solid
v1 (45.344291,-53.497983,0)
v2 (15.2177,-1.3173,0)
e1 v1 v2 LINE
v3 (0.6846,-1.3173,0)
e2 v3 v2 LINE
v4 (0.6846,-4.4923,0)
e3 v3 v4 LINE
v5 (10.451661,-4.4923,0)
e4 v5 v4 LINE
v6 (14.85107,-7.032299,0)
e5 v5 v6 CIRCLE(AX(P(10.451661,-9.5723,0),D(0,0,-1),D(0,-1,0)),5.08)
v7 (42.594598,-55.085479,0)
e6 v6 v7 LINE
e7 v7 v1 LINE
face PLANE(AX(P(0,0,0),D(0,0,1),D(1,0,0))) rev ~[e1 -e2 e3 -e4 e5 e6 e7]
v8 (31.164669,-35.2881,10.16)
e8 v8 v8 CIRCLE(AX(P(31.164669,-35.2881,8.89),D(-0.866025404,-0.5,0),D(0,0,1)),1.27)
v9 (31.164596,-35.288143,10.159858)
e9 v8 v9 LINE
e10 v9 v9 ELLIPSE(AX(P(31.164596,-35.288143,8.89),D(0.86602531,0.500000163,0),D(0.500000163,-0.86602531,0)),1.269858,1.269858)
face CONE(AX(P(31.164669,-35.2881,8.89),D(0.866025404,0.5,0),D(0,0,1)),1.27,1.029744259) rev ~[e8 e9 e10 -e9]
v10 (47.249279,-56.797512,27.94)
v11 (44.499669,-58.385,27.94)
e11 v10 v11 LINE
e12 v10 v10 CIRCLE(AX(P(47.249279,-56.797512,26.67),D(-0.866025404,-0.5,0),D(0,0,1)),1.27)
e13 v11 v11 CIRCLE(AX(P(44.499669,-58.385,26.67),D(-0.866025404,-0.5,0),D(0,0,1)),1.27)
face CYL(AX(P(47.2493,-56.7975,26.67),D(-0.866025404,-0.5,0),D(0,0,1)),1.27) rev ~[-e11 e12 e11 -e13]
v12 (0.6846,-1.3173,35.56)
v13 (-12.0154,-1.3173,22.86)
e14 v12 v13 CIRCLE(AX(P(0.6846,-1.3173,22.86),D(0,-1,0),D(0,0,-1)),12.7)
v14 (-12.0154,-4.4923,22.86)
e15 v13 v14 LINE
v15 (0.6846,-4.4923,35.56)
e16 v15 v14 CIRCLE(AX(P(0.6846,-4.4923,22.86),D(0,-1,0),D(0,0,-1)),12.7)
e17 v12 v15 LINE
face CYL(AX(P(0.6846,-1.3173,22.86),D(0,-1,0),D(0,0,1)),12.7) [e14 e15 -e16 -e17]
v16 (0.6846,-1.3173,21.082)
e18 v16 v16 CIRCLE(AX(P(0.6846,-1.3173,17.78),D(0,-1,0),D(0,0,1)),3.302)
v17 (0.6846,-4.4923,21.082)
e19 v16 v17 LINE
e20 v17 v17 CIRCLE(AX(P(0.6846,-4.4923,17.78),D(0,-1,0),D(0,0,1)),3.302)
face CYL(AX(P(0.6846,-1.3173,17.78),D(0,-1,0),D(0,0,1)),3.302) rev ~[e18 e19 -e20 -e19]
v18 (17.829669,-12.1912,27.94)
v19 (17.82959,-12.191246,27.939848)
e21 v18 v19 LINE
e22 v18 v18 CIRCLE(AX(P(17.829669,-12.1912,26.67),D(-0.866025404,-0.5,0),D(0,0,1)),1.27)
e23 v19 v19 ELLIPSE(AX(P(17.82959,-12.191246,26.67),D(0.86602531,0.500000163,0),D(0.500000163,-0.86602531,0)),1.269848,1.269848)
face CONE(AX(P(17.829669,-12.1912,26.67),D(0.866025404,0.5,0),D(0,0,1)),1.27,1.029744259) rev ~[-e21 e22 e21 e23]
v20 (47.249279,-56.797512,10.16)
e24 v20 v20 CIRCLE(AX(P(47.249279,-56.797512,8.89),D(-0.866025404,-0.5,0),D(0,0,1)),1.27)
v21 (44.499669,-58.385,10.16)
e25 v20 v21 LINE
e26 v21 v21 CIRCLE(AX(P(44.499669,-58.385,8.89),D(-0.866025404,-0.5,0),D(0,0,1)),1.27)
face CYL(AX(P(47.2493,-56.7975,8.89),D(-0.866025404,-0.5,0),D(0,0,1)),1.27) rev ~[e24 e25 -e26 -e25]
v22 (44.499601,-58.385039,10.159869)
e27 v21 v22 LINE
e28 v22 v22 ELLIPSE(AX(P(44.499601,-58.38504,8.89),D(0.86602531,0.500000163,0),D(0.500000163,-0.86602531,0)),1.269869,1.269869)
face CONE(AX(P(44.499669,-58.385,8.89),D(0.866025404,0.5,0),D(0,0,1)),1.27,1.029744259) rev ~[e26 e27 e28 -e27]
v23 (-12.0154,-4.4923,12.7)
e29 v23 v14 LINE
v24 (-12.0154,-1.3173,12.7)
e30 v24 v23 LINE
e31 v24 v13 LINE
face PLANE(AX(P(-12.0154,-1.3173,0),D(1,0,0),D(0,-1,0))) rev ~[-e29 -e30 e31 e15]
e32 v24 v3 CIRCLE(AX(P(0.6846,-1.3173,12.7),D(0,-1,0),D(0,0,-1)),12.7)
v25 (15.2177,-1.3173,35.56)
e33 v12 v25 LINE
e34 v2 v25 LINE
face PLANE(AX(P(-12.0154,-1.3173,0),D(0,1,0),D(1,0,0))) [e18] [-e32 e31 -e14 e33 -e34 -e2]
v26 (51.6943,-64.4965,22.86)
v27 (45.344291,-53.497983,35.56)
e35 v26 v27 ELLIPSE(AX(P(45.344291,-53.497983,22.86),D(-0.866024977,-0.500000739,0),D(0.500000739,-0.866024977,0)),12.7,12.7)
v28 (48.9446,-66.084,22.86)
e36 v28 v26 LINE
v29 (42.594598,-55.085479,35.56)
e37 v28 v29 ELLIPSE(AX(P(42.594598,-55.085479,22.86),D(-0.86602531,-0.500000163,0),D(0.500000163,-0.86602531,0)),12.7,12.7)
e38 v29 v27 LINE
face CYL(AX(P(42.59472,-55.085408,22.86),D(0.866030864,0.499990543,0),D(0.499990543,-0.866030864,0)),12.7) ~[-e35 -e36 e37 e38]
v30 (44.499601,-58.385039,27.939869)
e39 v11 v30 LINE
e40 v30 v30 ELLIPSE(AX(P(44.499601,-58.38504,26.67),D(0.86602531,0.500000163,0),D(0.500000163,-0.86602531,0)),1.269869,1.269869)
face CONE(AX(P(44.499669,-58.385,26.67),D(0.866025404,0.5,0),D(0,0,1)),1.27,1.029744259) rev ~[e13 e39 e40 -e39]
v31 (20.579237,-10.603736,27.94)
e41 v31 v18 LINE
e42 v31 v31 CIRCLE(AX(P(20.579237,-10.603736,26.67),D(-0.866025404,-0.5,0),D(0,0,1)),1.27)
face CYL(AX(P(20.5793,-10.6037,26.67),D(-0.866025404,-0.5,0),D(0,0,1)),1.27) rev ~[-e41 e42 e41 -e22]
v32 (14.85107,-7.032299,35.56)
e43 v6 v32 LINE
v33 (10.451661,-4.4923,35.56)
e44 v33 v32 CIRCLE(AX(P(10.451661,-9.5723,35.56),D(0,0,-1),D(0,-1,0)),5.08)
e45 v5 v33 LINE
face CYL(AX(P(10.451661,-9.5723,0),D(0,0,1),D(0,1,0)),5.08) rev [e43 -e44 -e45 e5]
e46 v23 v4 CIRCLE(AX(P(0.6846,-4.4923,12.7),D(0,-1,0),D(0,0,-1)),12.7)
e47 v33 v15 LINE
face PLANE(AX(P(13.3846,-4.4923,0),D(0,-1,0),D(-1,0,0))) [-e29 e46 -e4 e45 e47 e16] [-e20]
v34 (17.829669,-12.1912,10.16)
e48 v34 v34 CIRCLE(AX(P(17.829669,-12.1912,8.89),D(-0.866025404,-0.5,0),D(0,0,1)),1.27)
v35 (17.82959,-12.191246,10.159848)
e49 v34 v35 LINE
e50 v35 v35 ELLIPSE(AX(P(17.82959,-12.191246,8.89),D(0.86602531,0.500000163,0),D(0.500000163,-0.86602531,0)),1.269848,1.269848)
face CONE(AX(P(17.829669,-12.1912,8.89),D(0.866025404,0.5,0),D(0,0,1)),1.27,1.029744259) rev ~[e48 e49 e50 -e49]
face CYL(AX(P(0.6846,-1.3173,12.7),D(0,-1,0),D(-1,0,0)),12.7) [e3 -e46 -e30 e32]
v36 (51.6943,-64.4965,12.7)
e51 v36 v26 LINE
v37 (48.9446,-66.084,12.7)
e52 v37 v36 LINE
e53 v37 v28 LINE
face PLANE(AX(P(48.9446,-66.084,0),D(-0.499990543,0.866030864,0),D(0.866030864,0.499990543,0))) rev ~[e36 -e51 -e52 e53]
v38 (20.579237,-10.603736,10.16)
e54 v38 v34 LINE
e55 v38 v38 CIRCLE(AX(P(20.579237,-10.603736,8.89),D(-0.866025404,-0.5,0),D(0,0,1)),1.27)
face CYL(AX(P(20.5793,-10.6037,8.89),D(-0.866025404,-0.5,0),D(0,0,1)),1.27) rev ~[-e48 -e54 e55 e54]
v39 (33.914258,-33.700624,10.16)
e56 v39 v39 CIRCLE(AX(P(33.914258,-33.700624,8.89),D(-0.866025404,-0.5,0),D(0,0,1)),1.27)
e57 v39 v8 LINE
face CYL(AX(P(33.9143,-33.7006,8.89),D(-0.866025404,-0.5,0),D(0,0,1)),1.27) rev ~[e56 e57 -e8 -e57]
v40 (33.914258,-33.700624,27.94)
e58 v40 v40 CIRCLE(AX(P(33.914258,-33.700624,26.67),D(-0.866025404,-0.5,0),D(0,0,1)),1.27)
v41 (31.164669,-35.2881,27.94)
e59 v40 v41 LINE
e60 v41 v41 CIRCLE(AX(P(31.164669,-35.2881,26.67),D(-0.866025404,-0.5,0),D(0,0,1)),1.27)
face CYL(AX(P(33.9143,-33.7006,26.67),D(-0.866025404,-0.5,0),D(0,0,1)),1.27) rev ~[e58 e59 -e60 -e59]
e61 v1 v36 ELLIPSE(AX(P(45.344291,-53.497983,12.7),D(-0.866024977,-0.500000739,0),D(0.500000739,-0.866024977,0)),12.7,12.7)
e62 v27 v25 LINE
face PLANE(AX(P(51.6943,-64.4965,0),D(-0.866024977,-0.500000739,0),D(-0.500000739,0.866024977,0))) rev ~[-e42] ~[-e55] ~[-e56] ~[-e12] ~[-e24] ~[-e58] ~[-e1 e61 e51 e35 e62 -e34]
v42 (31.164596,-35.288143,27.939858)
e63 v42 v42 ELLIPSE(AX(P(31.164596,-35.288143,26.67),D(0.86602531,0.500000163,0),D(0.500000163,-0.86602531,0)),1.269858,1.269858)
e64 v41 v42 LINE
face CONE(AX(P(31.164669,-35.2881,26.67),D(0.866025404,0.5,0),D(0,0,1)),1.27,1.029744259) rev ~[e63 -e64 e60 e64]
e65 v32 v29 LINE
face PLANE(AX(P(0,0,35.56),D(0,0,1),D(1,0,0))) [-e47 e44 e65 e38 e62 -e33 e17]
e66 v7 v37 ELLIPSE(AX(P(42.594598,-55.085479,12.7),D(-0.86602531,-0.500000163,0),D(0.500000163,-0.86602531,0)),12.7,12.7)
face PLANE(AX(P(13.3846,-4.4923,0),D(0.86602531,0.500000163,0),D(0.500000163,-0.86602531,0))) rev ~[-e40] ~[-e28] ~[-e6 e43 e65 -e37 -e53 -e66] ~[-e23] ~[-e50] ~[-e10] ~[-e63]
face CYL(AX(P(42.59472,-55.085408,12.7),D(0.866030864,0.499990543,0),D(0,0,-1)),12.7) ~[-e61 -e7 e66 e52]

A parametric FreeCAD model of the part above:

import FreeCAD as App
import Part
import Sketcher
from FreeCAD import Vector
Q = App.Units.Quantity


def edges_at(feature, points):
    """Names of the edges that pass closest to the given points."""
    edges = feature.Shape.Edges
    near = lambda p: min(range(len(edges)), key=lambda i: edges[i].distToShape(Part.Vertex(*p))[0])
    return sorted({f"Edge{near(p) + 1}" for p in points})

doc = App.newDocument("Part")
body = doc.addObject("PartDesign::Body", "Body")

# Sketch on XY plane
sketch1 = doc.addObject("Sketcher::SketchObject", "Sketch")
body.addObject(sketch1)
sketch1.AttachmentSupport = (doc.XY_Plane, [""])
sketch1.MapMode = "FlatFace"
sketch1.addGeometry([
    Part.LineSegment(Vector(-12, -4.5, 0), Vector(13.4, -4.5, 0)),  # 0
    Part.LineSegment(Vector(13.4, -4.5, 0), Vector(48.9, -66.1, 0)),  # 1
    Part.LineSegment(Vector(48.9, -66.1, 0), Vector(51.7, -64.5, 0)),  # 2
    Part.LineSegment(Vector(51.7, -64.5, 0), Vector(15.2, -1.3, 0)),  # 3
    Part.LineSegment(Vector(15.2, -1.3, 0), Vector(-12, -1.3, 0)),  # 4
    Part.LineSegment(Vector(-12, -1.3, 0), Vector(-12, -4.5, 0)),  # 5
], False)
sketch1.addConstraint([
    Sketcher.Constraint("Coincident", 0, 2, 1, 1),
    Sketcher.Constraint("Coincident", 1, 2, 2, 1),
    Sketcher.Constraint("Coincident", 2, 2, 3, 1),
    Sketcher.Constraint("Coincident", 3, 2, 4, 1),
    Sketcher.Constraint("Coincident", 4, 2, 5, 1),
    Sketcher.Constraint("Coincident", 5, 2, 0, 1),
    Sketcher.Constraint("Horizontal", 0),
    Sketcher.Constraint("Horizontal", 4),
    Sketcher.Constraint("Vertical", 5),
    Sketcher.Constraint("Perpendicular", 1, 2),
    Sketcher.Constraint("Perpendicular", 2, 3),
    Sketcher.Constraint("Angle", 1, Q("-60 deg")),
    Sketcher.Constraint("Distance", 1, Q("2.8 in")),
    Sketcher.Constraint("DistanceX", 0, 1, 0, 2, Q("1 in")),
    Sketcher.Constraint("DistanceY", 5, 2, 5, 1, Q("0.125 in")),
    Sketcher.Constraint("Distance", 2, Q("0.125 in")),
    Sketcher.Constraint("DistanceX", -1, 1, 2, 2, Q("2.0352 in")),
    Sketcher.Constraint("DistanceY", 0, 2, -1, 1, 4.4923),
])
pad1 = doc.addObject("PartDesign::Pad", "Pad")
body.addObject(pad1)
pad1.Profile = sketch1
pad1.Length = Q("1.4 in")

# Sketch on XZ plane
sketch2 = doc.addObject("Sketcher::SketchObject", "Sketch001")
body.addObject(sketch2)
sketch2.AttachmentSupport = (doc.XZ_Plane, [""])
sketch2.MapMode = "FlatFace"
sketch2.AttachmentOffset = App.Placement(Vector(0, 0, 1.3173), App.Rotation())
sketch2.addGeometry(Part.Circle(Vector(0.7, 17.8, 0), Vector(0, 0, 1), 3.3), False)
sketch2.addConstraint([
    Sketcher.Constraint("Diameter", 0, Q("0.26 in")),
    Sketcher.Constraint("DistanceY", -1, 1, 0, 3, Q("0.7 in")),
    Sketcher.Constraint("DistanceX", -1, 1, 0, 3, 0.6846),
])
doc.recompute()
hole = doc.addObject("PartDesign::Hole", "Hole")
body.addObject(hole)
hole.Profile = sketch2
hole.ThreadType = "None"
hole.Diameter = Q("0.26 in")
hole.DepthType = "Dimension"
hole.Depth = Q("0.125 in")
hole.DrillPoint = "Angled"
hole.DrillPointAngle = 118
hole.Reversed = True

# Sketch on an angled plane
sketch3 = doc.addObject("Sketcher::SketchObject", "Sketch002")
body.addObject(sketch3)
sketch3.Placement = App.Placement(Vector(10.842936, 6.260172, 0), App.Rotation(Vector(-0.5, 0.866025404, 0), Vector(0, 0, 1), Vector(0.866025404, 0.5, 0), "ZXY"))
sketch3.addGeometry(Part.Circle(Vector(-72.8, 8.9, 0), Vector(0, 0, 1), 1.3), False)
sketch3.addConstraint([
    Sketcher.Constraint("Diameter", 0, Q("0.1 in")),
    Sketcher.Constraint("DistanceY", -1, 1, 0, 3, Q("0.35 in")),
    Sketcher.Constraint("DistanceX", 0, 3, -1, 1, 72.8127),
])
doc.recompute()
hole2 = doc.addObject("PartDesign::Hole", "Hole001")
body.addObject(hole2)
hole2.Profile = sketch3
hole2.ThreadType = "None"
hole2.Diameter = Q("0.1 in")
hole2.DepthType = "Dimension"
hole2.Depth = Q("0.125 in")
hole2.DrillPoint = "Angled"
hole2.DrillPointAngle = 118

# Sketch on an angled plane
sketch4 = doc.addObject("Sketcher::SketchObject", "Sketch003")
body.addObject(sketch4)
sketch4.Placement = App.Placement(Vector(10.842936, 6.260172, 0), App.Rotation(Vector(-0.5, 0.866025404, 0), Vector(0, 0, 1), Vector(0.866025404, 0.5, 0), "ZXY"))
sketch4.addGeometry(Part.Circle(Vector(-72.8, 26.7, 0), Vector(0, 0, 1), 1.3), False)
sketch4.addConstraint([
    Sketcher.Constraint("Diameter", 0, Q("0.1 in")),
    Sketcher.Constraint("DistanceY", -1, 1, 0, 3, Q("1.05 in")),
    Sketcher.Constraint("DistanceX", 0, 3, -1, 1, 72.8127),
])
doc.recompute()
hole3 = doc.addObject("PartDesign::Hole", "Hole002")
body.addObject(hole3)
hole3.Profile = sketch4
hole3.ThreadType = "None"
hole3.Diameter = Q("0.1 in")
hole3.DepthType = "Dimension"
hole3.Depth = Q("0.125 in")
hole3.DrillPoint = "Angled"
hole3.DrillPointAngle = 118

# Sketch on an angled plane
sketch5 = doc.addObject("Sketcher::SketchObject", "Sketch004")
body.addObject(sketch5)
sketch5.Placement = App.Placement(Vector(10.842937, 6.260173, 0), App.Rotation(Vector(-0.5, 0.866025404, 0), Vector(0, 0, 1), Vector(0.866025404, 0.5, 0), "ZXY"))
sketch5.addGeometry(Part.Circle(Vector(-46.1, 26.7, 0), Vector(0, 0, 1), 1.3), False)
sketch5.addConstraint([
    Sketcher.Constraint("Diameter", 0, Q("0.1 in")),
    Sketcher.Constraint("DistanceY", -1, 1, 0, 3, Q("1.05 in")),
    Sketcher.Constraint("DistanceX", 0, 3, -1, 1, 46.1427),
])
doc.recompute()
hole4 = doc.addObject("PartDesign::Hole", "Hole003")
body.addObject(hole4)
hole4.Profile = sketch5
hole4.ThreadType = "None"
hole4.Diameter = Q("0.1 in")
hole4.DepthType = "Dimension"
hole4.Depth = Q("0.125 in")
hole4.DrillPoint = "Angled"
hole4.DrillPointAngle = 118

# Sketch on an angled plane
sketch6 = doc.addObject("Sketcher::SketchObject", "Sketch005")
body.addObject(sketch6)
sketch6.Placement = App.Placement(Vector(10.842937, 6.260173, 0), App.Rotation(Vector(-0.5, 0.866025404, 0), Vector(0, 0, 1), Vector(0.866025404, 0.5, 0), "ZXY"))
sketch6.addGeometry(Part.Circle(Vector(-46.1, 8.9, 0), Vector(0, 0, 1), 1.3), False)
sketch6.addConstraint([
    Sketcher.Constraint("Diameter", 0, Q("0.1 in")),
    Sketcher.Constraint("DistanceY", -1, 1, 0, 3, Q("0.35 in")),
    Sketcher.Constraint("DistanceX", 0, 3, -1, 1, 46.1427),
])
doc.recompute()
hole5 = doc.addObject("PartDesign::Hole", "Hole004")
body.addObject(hole5)
hole5.Profile = sketch6
hole5.ThreadType = "None"
hole5.Diameter = Q("0.1 in")
hole5.DepthType = "Dimension"
hole5.Depth = Q("0.125 in")
hole5.DrillPoint = "Angled"
hole5.DrillPointAngle = 118

# Sketch on an angled plane
sketch7 = doc.addObject("Sketcher::SketchObject", "Sketch006")
body.addObject(sketch7)
sketch7.Placement = App.Placement(Vector(10.842938, 6.260173, 0), App.Rotation(Vector(-0.5, 0.866025404, 0), Vector(0, 0, 1), Vector(0.866025404, 0.5, 0), "ZXY"))
sketch7.addGeometry(Part.Circle(Vector(-19.5, 8.9, 0), Vector(0, 0, 1), 1.3), False)
sketch7.addConstraint([
    Sketcher.Constraint("Diameter", 0, Q("0.1 in")),
    Sketcher.Constraint("DistanceY", -1, 1, 0, 3, Q("0.35 in")),
    Sketcher.Constraint("DistanceX", 0, 3, -1, 1, 19.4727),
])
doc.recompute()
hole6 = doc.addObject("PartDesign::Hole", "Hole005")
body.addObject(hole6)
hole6.Profile = sketch7
hole6.ThreadType = "None"
hole6.Diameter = Q("0.1 in")
hole6.DepthType = "Dimension"
hole6.Depth = Q("0.125 in")
hole6.DrillPoint = "Angled"
hole6.DrillPointAngle = 118

# Sketch on an angled plane
sketch8 = doc.addObject("Sketcher::SketchObject", "Sketch007")
body.addObject(sketch8)
sketch8.Placement = App.Placement(Vector(10.842938, 6.260173, 0), App.Rotation(Vector(-0.5, 0.866025404, 0), Vector(0, 0, 1), Vector(0.866025404, 0.5, 0), "ZXY"))
sketch8.addGeometry(Part.Circle(Vector(-19.5, 26.7, 0), Vector(0, 0, 1), 1.3), False)
sketch8.addConstraint([
    Sketcher.Constraint("Diameter", 0, Q("0.1 in")),
    Sketcher.Constraint("DistanceY", -1, 1, 0, 3, Q("1.05 in")),
    Sketcher.Constraint("DistanceX", 0, 3, -1, 1, 19.4727),
])
doc.recompute()
hole7 = doc.addObject("PartDesign::Hole", "Hole006")
body.addObject(hole7)
hole7.Profile = sketch8
hole7.ThreadType = "None"
hole7.Diameter = Q("0.1 in")
hole7.DepthType = "Dimension"
hole7.Depth = Q("0.125 in")
hole7.DrillPoint = "Angled"
hole7.DrillPointAngle = 118
doc.recompute()

fillet = doc.addObject("PartDesign::Fillet", "Fillet")
body.addObject(fillet)
fillet.Base = (hole7, edges_at(hole7, [(50.319, -65.29, 0)]))
fillet.Radius = Q("0.5 in")
doc.recompute()

fillet2 = doc.addObject("PartDesign::Fillet", "Fillet001")
body.addObject(fillet2)
fillet2.Base = (fillet, edges_at(fillet, [(50.319, -65.29, 35.56)]))
fillet2.Radius = Q("0.5 in")
doc.recompute()

fillet3 = doc.addObject("PartDesign::Fillet", "Fillet002")
body.addObject(fillet3)
fillet3.Base = (fillet2, edges_at(fillet2, [(-12.015, -2.905, 35.56)]))
fillet3.Radius = Q("0.5 in")
doc.recompute()

fillet4 = doc.addObject("PartDesign::Fillet", "Fillet003")
body.addObject(fillet4)
fillet4.Base = (fillet3, edges_at(fillet3, [(-12.015, -2.905, 0)]))
fillet4.Radius = Q("0.5 in")
doc.recompute()

fillet5 = doc.addObject("PartDesign::Fillet", "Fillet004")
body.addObject(fillet5)
fillet5.Base = (fillet4, edges_at(fillet4, [(13.385, -4.492, 17.78)]))
fillet5.Radius = Q("0.2 in")

doc.recompute()
